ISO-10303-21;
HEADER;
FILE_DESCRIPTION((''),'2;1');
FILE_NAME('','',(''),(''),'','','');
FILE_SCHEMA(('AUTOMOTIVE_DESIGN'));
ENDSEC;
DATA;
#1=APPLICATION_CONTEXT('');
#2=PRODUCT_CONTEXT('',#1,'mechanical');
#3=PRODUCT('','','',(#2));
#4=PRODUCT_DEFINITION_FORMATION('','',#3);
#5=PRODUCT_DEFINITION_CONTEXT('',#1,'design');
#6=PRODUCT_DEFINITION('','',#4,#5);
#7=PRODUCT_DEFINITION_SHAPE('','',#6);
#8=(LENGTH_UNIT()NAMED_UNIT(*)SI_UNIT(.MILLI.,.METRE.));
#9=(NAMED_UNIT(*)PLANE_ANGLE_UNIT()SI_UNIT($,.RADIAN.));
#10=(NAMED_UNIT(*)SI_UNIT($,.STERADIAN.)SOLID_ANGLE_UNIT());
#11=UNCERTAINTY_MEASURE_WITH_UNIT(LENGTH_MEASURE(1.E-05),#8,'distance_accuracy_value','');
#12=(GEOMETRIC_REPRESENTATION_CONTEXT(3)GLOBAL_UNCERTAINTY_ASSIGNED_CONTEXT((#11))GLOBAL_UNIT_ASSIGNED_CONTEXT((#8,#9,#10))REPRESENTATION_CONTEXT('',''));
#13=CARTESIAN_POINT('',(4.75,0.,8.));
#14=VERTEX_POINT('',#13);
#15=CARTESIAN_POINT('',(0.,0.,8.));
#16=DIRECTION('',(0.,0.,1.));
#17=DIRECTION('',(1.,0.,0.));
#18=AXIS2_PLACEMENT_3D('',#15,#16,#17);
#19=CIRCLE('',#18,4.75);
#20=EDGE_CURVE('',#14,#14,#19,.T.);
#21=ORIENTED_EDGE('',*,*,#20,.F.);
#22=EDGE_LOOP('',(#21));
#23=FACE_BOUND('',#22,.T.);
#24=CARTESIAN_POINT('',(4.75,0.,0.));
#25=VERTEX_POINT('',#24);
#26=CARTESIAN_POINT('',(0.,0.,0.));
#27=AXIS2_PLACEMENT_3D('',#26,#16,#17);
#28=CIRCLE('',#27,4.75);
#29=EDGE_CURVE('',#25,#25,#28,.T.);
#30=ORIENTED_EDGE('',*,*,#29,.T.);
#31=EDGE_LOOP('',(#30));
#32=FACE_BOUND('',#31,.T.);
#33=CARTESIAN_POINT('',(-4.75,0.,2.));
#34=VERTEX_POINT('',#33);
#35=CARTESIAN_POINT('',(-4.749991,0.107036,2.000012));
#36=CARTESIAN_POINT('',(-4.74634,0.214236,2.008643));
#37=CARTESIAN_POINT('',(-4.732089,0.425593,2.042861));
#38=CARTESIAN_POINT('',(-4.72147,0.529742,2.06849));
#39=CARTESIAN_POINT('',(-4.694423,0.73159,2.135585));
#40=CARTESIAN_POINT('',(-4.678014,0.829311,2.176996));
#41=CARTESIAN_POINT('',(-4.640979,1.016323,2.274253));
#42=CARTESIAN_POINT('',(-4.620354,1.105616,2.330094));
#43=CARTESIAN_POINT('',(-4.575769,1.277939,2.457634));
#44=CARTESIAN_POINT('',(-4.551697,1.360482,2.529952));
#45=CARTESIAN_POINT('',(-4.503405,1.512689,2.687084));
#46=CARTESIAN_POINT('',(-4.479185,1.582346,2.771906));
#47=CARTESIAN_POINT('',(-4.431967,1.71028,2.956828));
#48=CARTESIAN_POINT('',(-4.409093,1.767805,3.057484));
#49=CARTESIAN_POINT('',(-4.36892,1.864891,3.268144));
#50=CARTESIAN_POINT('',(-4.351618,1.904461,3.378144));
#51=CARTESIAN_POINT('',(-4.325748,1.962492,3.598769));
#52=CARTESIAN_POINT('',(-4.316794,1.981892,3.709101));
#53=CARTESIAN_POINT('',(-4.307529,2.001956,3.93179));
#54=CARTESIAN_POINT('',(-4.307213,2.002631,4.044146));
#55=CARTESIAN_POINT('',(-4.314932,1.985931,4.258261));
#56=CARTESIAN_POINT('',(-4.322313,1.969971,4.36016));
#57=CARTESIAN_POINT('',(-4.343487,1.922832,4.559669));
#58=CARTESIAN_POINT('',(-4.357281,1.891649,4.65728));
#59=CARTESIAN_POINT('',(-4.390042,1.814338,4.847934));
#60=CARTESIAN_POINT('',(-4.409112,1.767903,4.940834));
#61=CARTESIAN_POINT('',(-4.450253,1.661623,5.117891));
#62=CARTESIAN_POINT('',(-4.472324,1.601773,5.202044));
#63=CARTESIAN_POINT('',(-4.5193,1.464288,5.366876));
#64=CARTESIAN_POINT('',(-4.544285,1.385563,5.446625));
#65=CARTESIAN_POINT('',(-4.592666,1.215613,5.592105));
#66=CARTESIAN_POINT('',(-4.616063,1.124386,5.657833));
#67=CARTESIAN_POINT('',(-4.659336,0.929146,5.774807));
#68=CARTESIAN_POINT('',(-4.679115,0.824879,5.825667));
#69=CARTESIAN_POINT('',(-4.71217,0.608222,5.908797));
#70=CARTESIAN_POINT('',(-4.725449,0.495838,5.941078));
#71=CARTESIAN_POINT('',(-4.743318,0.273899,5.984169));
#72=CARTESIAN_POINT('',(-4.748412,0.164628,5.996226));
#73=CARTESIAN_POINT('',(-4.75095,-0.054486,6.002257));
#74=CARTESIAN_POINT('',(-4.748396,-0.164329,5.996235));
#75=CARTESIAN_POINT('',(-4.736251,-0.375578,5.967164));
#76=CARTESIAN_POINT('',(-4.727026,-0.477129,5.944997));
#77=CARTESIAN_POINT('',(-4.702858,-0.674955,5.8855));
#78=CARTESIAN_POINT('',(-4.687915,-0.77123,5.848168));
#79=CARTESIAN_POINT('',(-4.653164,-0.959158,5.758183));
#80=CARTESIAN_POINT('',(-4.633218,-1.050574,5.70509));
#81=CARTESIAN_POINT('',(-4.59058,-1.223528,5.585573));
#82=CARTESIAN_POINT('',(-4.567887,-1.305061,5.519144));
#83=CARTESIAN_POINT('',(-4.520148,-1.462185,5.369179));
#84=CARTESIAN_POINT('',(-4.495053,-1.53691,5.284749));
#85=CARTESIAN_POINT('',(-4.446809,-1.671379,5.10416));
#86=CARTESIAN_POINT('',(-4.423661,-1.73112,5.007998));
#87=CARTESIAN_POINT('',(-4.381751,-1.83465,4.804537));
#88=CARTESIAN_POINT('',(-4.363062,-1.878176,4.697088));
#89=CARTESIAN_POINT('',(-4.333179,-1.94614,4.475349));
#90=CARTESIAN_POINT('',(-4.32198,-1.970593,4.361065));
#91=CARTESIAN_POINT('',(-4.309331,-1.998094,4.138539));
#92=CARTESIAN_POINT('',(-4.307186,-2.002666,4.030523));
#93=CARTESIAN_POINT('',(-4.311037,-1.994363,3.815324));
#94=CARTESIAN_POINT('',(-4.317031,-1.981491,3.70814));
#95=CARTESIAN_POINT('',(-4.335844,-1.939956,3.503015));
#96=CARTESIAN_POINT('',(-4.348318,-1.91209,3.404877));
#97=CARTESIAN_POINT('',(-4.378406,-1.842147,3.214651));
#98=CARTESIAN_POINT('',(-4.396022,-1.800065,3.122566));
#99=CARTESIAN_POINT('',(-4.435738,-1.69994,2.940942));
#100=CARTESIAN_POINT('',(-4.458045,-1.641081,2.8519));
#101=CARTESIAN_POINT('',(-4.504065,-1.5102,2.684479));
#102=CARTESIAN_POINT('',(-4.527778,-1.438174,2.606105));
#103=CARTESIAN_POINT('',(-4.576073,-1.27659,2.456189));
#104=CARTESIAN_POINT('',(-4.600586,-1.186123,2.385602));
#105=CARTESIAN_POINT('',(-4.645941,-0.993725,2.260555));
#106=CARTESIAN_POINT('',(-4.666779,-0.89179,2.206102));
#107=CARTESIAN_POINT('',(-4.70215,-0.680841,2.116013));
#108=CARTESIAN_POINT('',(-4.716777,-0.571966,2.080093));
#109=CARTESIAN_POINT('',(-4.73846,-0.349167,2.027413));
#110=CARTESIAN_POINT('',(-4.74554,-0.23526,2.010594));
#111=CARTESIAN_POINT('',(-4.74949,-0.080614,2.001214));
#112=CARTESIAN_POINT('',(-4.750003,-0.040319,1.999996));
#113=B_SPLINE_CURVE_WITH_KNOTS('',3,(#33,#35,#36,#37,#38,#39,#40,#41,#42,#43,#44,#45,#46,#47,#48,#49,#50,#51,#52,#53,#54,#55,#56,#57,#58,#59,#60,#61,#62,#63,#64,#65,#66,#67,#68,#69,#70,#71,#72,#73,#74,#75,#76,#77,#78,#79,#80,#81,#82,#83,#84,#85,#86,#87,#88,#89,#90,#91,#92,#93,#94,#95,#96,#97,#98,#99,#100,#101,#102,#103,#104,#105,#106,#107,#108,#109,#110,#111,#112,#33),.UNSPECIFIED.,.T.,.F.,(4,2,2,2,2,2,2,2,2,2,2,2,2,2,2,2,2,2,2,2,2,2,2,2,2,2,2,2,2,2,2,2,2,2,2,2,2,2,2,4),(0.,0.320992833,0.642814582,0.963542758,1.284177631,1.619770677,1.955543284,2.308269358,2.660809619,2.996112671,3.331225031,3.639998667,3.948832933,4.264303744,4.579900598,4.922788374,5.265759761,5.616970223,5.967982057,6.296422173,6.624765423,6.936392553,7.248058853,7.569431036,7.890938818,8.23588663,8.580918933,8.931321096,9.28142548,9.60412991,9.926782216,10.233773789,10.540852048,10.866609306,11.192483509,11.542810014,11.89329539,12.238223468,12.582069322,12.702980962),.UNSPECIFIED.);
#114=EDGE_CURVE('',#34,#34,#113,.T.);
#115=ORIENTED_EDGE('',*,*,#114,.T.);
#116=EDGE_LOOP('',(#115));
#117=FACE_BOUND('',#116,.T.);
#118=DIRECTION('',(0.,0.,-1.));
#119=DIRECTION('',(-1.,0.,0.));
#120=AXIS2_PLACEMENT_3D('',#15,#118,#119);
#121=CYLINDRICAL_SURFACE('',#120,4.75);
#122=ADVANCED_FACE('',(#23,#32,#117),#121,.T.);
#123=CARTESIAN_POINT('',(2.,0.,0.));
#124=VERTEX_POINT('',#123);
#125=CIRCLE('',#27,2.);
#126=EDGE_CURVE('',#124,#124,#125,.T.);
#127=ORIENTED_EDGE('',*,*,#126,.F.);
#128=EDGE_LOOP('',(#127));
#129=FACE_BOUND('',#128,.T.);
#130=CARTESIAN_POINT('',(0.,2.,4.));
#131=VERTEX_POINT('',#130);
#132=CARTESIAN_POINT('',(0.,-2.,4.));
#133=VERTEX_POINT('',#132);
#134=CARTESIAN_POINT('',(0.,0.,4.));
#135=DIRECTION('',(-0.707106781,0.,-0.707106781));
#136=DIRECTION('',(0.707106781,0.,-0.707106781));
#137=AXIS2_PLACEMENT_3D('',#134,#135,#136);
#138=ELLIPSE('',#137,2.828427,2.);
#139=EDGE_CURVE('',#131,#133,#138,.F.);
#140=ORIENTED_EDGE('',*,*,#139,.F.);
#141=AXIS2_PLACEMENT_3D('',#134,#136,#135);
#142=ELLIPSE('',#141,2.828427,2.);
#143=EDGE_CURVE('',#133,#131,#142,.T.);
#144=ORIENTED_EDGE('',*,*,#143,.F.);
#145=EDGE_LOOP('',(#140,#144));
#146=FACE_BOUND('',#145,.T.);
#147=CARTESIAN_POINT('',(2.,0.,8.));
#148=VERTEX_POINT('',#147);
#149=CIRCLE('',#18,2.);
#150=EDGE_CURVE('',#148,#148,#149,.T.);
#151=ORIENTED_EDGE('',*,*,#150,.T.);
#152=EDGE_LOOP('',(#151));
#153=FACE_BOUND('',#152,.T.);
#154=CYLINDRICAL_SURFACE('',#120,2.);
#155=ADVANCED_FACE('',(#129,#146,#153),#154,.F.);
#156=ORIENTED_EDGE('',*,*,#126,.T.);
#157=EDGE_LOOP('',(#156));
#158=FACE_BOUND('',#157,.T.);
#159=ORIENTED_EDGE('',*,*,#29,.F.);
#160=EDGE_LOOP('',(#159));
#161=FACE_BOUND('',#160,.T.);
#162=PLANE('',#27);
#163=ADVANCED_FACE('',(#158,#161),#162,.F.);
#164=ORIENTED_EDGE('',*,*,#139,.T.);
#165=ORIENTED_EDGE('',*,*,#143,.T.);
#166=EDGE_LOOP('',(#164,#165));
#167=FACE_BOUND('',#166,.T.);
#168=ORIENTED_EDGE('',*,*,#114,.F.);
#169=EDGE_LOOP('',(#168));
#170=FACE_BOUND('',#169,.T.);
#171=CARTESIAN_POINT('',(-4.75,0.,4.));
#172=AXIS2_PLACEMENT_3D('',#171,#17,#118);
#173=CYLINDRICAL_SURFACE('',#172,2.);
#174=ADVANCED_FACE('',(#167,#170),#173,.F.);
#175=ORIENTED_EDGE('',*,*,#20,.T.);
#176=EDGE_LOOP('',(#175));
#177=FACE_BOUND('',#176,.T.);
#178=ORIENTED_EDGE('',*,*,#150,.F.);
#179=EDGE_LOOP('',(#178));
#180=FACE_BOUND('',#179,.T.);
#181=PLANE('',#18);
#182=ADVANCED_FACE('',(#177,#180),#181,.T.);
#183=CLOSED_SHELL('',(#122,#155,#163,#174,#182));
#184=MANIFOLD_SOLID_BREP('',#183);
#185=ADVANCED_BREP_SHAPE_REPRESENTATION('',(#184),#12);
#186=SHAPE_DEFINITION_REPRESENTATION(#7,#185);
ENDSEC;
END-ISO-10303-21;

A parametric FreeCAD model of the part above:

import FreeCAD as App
import Part
import Sketcher

V = App.Vector

doc = App.newDocument("Part")
body = doc.addObject("PartDesign::Body", "Body")

sketch1 = body.newObject("Sketcher::SketchObject", "Sketch")
sketch1.AttachmentSupport = (doc.getObject("XY_Plane"), [""])
sketch1.MapMode = "FlatFace"
sketch1.addGeometry([
    Part.Circle(V(0, 0, 0), V(0, 0, 1), 4.8),
    Part.Circle(V(0, 0, 0), V(0, 0, 1), 2),
], False)
sketch1.addConstraint([
    Sketcher.Constraint("Coincident", 0, 3, -1, 1),
    Sketcher.Constraint("Coincident", 1, 3, -1, 1),
    Sketcher.Constraint("Diameter", 1, 4.0),
    Sketcher.Constraint("Diameter", 0, 9.5),
])
pad1 = body.newObject("PartDesign::Pad", "Pad")
pad1.Profile = sketch1
pad1.Length = 8

sketch2 = body.newObject("Sketcher::SketchObject", "Sketch001")
sketch2.AttachmentSupport = (doc.getObject("YZ_Plane"), [""])
sketch2.MapMode = "FlatFace"
sketch2.addGeometry(Part.Circle(V(0, 4, 0), V(0, 0, 1), 2), False)
sketch2.addConstraint([
    Sketcher.Constraint("PointOnObject", 0, 3, -2),
    Sketcher.Constraint("Diameter", 0, 4.0),
    Sketcher.Constraint("DistanceY", -1, 1, 0, 3, 4.0),
])
pocket1 = body.newObject("PartDesign::Pocket", "Pocket")
pocket1.Profile = sketch2
pocket1.Type = "ThroughAll"

doc.recompute()
